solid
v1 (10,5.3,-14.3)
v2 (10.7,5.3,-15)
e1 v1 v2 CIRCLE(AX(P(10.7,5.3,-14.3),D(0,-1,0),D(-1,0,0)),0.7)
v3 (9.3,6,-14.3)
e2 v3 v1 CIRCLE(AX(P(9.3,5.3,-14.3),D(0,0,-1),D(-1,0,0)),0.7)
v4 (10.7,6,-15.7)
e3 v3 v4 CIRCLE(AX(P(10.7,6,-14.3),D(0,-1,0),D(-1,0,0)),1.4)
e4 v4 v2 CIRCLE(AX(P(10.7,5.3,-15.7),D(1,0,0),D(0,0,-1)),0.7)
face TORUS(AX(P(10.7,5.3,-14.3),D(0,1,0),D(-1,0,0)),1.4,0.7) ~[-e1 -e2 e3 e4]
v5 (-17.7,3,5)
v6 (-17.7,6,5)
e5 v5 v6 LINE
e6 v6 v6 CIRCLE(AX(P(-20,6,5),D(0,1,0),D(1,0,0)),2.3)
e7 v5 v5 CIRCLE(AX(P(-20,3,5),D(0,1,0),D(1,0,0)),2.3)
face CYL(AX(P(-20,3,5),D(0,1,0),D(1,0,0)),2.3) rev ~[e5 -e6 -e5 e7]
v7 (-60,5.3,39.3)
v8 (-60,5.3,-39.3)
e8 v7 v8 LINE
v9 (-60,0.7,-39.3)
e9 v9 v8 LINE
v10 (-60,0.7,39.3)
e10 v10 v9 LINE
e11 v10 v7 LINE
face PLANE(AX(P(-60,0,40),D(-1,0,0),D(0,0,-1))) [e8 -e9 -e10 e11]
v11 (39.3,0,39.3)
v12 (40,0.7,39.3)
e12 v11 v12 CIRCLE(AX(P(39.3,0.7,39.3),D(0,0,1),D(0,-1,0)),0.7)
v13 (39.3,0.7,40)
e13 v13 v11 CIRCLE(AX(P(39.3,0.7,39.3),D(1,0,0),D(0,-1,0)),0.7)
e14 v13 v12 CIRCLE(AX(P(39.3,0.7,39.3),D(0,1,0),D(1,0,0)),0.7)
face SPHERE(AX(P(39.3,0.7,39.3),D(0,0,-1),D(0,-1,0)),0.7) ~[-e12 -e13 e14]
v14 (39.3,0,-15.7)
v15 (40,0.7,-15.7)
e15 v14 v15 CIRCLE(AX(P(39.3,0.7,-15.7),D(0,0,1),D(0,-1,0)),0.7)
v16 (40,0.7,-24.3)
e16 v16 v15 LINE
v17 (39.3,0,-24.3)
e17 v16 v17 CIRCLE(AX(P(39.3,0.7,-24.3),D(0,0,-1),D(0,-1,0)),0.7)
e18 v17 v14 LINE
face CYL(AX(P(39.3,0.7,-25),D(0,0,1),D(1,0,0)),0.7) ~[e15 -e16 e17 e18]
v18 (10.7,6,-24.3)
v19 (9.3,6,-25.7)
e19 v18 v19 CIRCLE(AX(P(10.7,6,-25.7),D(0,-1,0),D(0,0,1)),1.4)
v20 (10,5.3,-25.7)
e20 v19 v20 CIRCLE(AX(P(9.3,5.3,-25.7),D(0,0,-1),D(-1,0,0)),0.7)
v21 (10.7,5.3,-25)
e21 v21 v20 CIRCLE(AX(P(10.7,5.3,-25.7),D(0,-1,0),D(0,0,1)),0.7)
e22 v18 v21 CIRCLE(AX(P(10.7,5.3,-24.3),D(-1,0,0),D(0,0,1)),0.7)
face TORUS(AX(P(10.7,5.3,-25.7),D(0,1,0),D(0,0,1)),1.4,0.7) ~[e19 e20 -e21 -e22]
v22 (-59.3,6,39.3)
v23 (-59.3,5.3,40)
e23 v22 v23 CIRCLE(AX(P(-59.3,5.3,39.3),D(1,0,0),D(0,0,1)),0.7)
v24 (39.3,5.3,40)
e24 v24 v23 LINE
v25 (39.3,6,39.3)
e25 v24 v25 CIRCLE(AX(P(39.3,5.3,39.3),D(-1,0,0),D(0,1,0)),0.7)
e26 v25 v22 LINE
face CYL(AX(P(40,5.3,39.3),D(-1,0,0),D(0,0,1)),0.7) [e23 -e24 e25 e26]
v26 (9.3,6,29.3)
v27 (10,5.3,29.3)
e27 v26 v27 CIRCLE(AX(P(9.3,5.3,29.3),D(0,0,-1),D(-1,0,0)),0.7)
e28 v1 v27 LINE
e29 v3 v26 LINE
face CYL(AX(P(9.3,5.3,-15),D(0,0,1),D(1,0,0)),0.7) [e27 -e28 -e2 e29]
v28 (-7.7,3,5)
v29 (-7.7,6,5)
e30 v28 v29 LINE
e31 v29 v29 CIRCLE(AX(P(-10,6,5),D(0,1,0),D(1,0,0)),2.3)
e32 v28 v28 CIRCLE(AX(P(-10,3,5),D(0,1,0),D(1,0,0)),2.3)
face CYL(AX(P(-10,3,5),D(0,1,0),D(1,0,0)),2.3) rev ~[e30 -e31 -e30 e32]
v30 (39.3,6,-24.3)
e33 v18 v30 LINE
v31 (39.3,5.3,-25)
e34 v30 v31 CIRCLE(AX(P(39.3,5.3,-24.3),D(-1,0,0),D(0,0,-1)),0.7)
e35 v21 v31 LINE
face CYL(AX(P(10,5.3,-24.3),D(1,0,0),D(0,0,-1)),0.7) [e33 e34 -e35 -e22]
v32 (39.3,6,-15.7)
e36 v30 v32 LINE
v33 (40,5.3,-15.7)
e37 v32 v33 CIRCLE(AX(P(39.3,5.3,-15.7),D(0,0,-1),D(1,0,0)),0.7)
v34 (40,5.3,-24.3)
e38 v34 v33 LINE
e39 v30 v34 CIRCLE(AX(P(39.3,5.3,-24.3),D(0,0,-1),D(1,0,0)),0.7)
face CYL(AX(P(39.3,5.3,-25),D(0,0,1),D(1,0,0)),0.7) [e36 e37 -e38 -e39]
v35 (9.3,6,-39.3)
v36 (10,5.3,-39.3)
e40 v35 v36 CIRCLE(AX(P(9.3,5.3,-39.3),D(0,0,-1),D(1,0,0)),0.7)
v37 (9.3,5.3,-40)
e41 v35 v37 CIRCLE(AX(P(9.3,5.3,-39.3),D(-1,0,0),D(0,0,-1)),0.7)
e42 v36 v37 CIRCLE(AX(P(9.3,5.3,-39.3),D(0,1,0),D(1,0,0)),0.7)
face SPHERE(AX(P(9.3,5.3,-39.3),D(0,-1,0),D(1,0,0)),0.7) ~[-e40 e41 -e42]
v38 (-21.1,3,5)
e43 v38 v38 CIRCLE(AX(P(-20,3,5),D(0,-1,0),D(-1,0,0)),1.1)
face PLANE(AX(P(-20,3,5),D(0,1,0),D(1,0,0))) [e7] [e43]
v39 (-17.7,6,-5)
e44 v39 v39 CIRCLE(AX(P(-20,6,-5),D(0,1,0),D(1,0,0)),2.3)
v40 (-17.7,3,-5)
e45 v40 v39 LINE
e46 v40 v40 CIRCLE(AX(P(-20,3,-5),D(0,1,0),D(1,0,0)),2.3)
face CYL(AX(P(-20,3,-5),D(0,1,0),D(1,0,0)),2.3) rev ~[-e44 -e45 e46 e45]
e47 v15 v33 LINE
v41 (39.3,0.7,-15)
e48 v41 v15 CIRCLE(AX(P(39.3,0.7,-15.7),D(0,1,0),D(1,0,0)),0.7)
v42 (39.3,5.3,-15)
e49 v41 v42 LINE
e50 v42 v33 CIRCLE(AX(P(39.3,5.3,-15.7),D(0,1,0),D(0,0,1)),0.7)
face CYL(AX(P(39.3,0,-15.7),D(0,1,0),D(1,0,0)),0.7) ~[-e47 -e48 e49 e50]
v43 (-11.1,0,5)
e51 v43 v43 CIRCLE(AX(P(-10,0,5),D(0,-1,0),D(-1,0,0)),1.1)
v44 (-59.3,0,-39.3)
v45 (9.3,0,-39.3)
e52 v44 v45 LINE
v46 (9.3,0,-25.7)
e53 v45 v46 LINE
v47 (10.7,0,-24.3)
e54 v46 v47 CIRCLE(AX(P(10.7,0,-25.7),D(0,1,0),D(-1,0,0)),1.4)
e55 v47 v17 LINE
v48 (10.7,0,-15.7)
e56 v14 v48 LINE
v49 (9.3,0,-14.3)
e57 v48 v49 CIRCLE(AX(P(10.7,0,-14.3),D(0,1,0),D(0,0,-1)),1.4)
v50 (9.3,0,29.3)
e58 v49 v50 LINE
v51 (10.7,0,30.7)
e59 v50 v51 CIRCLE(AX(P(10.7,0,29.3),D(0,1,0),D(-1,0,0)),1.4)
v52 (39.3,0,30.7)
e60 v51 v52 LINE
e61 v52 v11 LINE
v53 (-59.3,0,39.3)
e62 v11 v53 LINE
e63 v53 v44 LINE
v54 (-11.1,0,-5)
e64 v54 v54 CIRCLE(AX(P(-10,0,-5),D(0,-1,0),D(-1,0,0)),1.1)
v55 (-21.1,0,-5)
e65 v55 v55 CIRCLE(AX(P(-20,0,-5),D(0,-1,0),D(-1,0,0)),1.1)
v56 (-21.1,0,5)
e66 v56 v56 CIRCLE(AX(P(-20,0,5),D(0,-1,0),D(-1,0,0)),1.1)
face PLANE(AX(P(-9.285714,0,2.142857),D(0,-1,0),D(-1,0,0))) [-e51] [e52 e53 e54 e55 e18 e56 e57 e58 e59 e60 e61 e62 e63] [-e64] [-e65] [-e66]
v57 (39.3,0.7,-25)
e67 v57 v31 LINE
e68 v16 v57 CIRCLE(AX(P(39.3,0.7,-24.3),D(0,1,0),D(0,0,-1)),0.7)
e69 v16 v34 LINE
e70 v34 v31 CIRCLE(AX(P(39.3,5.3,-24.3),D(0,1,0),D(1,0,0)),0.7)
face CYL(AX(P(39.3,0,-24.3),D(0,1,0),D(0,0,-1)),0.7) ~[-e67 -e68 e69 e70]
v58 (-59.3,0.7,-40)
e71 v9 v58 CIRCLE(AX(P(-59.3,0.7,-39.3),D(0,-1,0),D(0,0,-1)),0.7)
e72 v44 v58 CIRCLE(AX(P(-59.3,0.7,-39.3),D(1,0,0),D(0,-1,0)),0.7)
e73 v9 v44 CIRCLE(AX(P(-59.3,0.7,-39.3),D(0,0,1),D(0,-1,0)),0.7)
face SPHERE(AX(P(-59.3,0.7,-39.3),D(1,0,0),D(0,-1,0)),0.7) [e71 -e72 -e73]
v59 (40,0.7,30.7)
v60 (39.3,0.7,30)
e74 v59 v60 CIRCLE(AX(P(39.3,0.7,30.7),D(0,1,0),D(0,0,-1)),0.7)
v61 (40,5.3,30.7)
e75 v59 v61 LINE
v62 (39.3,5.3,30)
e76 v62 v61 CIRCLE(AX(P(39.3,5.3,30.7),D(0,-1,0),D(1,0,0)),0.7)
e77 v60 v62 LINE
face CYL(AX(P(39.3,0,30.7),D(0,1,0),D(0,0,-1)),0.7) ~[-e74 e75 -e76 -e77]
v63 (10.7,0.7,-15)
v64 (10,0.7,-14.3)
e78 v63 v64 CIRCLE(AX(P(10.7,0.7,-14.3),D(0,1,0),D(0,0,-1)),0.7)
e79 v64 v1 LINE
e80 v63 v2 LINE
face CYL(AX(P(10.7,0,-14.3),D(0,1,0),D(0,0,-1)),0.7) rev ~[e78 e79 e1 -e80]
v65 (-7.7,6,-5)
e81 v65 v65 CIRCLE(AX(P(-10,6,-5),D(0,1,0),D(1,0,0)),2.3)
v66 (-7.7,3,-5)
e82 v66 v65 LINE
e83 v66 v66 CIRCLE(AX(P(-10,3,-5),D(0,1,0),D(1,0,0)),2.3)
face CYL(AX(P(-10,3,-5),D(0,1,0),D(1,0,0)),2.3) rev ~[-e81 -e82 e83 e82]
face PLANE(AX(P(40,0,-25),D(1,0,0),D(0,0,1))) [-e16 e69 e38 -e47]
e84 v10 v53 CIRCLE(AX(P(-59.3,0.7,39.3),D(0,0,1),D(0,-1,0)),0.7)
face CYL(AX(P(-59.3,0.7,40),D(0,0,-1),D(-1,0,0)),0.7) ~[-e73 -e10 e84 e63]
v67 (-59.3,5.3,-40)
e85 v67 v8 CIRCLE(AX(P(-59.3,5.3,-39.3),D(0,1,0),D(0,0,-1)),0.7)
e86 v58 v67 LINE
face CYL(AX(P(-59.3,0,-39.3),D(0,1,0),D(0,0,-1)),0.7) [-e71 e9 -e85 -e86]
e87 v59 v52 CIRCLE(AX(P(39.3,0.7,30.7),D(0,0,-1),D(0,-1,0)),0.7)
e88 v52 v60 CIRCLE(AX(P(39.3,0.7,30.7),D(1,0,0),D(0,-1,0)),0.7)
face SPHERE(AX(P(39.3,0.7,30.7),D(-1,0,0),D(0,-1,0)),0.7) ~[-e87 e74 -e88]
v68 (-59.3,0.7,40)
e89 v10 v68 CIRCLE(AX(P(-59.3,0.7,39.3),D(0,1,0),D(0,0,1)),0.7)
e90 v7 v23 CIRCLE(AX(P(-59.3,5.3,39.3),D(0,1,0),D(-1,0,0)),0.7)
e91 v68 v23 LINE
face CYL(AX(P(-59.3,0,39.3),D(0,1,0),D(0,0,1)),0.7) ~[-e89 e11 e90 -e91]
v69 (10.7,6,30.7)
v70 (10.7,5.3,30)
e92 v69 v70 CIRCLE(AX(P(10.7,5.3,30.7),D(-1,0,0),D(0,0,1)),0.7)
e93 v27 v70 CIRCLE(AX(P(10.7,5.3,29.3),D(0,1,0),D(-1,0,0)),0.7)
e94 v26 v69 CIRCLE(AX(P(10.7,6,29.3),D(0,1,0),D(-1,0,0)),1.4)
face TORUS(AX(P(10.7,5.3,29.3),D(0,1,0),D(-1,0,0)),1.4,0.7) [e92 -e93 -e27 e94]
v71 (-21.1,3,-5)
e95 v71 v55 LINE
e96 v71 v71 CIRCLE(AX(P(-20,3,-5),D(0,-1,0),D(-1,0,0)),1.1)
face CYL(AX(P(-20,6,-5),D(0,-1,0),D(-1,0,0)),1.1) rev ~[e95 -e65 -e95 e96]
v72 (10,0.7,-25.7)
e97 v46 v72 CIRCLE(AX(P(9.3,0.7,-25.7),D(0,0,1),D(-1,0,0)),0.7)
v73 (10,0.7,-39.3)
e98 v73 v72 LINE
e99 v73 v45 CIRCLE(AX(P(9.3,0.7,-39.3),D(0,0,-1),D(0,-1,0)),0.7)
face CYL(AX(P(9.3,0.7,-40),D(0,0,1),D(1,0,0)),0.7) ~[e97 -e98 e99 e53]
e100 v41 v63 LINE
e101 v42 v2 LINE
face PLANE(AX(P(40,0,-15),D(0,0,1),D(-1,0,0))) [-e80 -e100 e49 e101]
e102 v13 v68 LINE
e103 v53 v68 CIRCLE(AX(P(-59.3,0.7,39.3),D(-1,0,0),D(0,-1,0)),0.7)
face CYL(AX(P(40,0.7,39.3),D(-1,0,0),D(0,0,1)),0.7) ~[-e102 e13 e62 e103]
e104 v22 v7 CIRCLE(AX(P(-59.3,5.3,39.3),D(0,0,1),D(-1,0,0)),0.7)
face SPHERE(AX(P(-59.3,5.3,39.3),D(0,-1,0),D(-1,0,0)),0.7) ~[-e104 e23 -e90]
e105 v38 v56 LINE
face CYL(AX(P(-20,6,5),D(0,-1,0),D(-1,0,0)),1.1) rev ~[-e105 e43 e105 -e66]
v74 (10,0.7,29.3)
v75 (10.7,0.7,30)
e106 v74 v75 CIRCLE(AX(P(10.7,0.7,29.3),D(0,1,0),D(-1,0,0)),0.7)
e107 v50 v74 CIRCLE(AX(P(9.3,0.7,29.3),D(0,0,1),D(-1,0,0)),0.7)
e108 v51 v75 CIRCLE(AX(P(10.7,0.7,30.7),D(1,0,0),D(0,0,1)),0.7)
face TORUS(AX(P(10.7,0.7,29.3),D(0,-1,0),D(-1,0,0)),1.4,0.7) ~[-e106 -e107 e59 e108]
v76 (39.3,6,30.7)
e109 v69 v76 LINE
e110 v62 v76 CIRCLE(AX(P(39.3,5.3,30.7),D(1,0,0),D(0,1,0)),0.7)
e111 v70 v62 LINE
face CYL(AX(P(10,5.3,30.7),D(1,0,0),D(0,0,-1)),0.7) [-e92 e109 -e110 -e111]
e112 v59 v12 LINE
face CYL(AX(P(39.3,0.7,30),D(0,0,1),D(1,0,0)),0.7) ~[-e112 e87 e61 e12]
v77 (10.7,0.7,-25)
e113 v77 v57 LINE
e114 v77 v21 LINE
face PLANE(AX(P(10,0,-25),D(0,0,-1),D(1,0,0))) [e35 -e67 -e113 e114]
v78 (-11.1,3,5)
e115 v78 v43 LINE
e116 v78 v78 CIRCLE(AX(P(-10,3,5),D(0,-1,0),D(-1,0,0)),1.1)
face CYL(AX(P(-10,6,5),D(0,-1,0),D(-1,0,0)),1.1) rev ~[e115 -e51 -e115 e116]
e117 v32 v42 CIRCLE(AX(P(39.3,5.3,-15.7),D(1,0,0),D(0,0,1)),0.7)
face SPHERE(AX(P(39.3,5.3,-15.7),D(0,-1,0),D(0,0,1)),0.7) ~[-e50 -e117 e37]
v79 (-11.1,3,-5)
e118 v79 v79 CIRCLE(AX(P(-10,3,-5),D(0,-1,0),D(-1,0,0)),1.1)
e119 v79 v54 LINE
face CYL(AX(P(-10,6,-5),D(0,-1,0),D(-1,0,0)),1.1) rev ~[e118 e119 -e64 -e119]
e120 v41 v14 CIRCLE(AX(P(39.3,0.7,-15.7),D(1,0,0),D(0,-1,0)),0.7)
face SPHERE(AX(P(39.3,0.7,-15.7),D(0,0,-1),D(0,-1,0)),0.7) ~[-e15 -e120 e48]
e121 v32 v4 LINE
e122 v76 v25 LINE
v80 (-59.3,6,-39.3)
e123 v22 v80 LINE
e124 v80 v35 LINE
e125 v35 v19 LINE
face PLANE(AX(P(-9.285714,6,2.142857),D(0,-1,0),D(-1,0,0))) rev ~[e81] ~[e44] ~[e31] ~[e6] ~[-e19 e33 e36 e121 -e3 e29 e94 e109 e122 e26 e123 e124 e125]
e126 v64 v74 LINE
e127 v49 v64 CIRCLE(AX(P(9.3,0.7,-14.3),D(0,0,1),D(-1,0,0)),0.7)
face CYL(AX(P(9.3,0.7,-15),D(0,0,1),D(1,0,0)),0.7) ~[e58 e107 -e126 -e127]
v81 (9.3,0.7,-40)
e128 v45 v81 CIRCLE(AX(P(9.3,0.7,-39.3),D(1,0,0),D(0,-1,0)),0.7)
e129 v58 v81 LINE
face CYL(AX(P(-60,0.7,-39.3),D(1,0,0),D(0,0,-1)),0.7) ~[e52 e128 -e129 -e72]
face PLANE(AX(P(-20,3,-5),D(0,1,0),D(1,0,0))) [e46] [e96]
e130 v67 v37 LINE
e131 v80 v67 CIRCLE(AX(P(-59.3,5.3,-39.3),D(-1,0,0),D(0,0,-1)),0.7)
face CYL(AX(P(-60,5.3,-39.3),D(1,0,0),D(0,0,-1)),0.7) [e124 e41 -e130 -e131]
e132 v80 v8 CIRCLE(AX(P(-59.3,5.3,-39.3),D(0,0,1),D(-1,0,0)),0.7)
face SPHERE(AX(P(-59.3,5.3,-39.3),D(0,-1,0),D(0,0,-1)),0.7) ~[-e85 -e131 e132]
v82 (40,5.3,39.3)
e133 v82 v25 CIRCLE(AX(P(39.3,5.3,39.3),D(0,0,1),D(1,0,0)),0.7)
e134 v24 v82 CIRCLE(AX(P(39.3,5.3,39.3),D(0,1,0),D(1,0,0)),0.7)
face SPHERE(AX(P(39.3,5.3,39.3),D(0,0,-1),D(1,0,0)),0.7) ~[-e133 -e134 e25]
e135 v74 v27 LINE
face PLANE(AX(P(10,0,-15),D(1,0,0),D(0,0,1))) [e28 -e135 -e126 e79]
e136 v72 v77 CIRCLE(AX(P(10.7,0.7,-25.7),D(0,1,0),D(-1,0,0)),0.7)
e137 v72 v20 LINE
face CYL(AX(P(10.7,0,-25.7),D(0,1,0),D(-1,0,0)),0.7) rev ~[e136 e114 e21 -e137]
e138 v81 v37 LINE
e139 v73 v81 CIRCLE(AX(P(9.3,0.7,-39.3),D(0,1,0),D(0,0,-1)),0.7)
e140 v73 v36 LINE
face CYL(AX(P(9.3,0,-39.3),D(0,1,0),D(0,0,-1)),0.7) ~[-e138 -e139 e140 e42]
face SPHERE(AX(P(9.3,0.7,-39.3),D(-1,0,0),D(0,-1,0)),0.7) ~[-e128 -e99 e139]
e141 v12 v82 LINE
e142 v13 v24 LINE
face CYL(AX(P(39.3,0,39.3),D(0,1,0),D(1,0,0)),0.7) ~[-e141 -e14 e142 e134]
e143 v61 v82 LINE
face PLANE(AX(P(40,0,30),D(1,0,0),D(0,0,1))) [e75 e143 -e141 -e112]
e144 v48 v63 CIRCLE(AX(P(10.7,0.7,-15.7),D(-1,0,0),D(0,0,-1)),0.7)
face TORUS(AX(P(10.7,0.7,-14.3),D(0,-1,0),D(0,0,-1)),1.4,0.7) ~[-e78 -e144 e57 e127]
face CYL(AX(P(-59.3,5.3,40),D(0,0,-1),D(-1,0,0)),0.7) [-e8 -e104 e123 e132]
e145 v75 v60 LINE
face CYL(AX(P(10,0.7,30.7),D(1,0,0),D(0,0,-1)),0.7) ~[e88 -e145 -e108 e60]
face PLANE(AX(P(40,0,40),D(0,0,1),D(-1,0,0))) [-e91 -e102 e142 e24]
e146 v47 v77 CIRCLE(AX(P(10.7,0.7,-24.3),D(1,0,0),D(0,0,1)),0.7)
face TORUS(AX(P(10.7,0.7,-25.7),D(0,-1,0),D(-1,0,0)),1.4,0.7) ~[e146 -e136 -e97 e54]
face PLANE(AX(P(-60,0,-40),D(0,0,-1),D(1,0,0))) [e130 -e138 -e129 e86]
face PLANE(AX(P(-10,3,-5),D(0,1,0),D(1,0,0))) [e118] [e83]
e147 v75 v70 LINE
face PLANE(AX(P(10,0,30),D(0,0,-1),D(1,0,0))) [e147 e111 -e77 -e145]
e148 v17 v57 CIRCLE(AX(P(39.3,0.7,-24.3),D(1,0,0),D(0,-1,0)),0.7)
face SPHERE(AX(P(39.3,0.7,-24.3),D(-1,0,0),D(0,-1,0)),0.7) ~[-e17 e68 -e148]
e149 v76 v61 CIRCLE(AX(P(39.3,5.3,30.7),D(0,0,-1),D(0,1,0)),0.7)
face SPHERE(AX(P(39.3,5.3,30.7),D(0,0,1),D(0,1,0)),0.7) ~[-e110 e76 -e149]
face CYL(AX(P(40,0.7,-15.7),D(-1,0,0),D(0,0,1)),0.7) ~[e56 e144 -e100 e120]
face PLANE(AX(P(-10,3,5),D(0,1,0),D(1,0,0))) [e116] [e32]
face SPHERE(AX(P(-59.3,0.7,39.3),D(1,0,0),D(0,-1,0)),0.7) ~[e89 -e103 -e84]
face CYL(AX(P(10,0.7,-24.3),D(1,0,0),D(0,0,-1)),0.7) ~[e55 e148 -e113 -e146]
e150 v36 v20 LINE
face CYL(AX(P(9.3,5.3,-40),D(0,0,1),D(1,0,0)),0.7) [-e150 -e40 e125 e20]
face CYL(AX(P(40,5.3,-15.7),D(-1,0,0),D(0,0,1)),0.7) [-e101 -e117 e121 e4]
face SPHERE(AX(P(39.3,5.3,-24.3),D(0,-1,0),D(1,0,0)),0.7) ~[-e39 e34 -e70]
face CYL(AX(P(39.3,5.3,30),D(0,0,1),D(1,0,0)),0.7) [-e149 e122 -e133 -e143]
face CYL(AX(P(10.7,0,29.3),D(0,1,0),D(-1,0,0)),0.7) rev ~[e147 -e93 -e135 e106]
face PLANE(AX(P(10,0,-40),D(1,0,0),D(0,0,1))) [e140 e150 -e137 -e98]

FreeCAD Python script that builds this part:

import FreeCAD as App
import Part
import Sketcher

doc = App.newDocument("Part")
body = doc.addObject("PartDesign::Body", "Body")

sketch1 = body.newObject("Sketcher::SketchObject", "Sketch")
sketch1.AttachmentSupport = (doc.getObject("XZ_Plane"), [""])
sketch1.MapMode = "FlatFace"
sketch1.addGeometry([
    Part.LineSegment(App.Vector(10, -40, 0), App.Vector(-60, -40, 0)),
    Part.LineSegment(App.Vector(-60, -40, 0), App.Vector(-60, 40, 0)),
    Part.LineSegment(App.Vector(-60, 40, 0), App.Vector(40, 40, 0)),
    Part.LineSegment(App.Vector(40, 40, 0), App.Vector(40, 30, 0)),
    Part.LineSegment(App.Vector(40, 30, 0), App.Vector(10, 30, 0)),
    Part.LineSegment(App.Vector(10, 30, 0), App.Vector(10, -15, 0)),
    Part.LineSegment(App.Vector(10, -15, 0), App.Vector(40, -15, 0)),
    Part.LineSegment(App.Vector(40, -15, 0), App.Vector(40, -25, 0)),
    Part.LineSegment(App.Vector(40, -25, 0), App.Vector(10, -25, 0)),
    Part.LineSegment(App.Vector(10, -25, 0), App.Vector(10, -40, 0)),
], False)
sketch1.addConstraint([
    Sketcher.Constraint("Coincident", 0, 2, 1, 1),
    Sketcher.Constraint("Coincident", 1, 2, 2, 1),
    Sketcher.Constraint("Coincident", 2, 2, 3, 1),
    Sketcher.Constraint("Coincident", 3, 2, 4, 1),
    Sketcher.Constraint("Coincident", 4, 2, 5, 1),
    Sketcher.Constraint("Coincident", 5, 2, 6, 1),
    Sketcher.Constraint("Coincident", 6, 2, 7, 1),
    Sketcher.Constraint("Coincident", 7, 2, 8, 1),
    Sketcher.Constraint("Coincident", 8, 2, 9, 1),
    Sketcher.Constraint("Coincident", 9, 2, 0, 1),
    Sketcher.Constraint("Horizontal", 0),
    Sketcher.Constraint("Vertical", 1),
    Sketcher.Constraint("Horizontal", 2),
    Sketcher.Constraint("Vertical", 3),
    Sketcher.Constraint("Horizontal", 4),
    Sketcher.Constraint("Vertical", 5),
    Sketcher.Constraint("Horizontal", 6),
    Sketcher.Constraint("Vertical", 7),
    Sketcher.Constraint("Horizontal", 8),
    Sketcher.Constraint("Vertical", 9),
    Sketcher.Constraint("Vertical", 3, 2, 6, 2),
    Sketcher.Constraint("Vertical", 5, 2, 8, 2),
    Sketcher.Constraint("Equal", 3, 7),
    Sketcher.Constraint("DistanceX", 0, 2, 0, 1, 70.0),
    Sketcher.Constraint("DistanceX", 2, 1, 2, 2, 100.0),
    Sketcher.Constraint("DistanceY", 1, 1, 1, 2, 80.0),
    Sketcher.Constraint("DistanceY", 3, 2, 3, 1, 10.0),
    Sketcher.Constraint("DistanceY", 5, 2, 5, 1, 45.0),
    Sketcher.Constraint("DistanceX", 0, 2, -1, 1, 60.0),
    Sketcher.Constraint("DistanceY", 0, 2, -1, 1, 40.0),
])
pad1 = body.newObject("PartDesign::Pad", "Pad")
pad1.Profile = sketch1
pad1.Length = 6
pad1.Reversed = True
doc.recompute()

fillet = body.newObject("PartDesign::Fillet", "Fillet")
fillet.Base = (pad1, ["Edge1"])
fillet.UseAllEdges = True
fillet.Radius = 0.7

sketch2 = body.newObject("Sketcher::SketchObject", "Sketch001")
sketch2.AttachmentSupport = (doc.getObject("XZ_Plane"), [""])
sketch2.MapMode = "FlatFace"
sketch2.AttachmentOffset = App.Placement(App.Vector(0, 0, -6), App.Rotation())
sketch2.addGeometry([
    Part.Circle(App.Vector(-20, -5, 0), App.Vector(0, 0, 1), 1.1),
    Part.Circle(App.Vector(-10, -5, 0), App.Vector(0, 0, 1), 1.1),
    Part.Circle(App.Vector(-10, 5, 0), App.Vector(0, 0, 1), 1.1),
    Part.Circle(App.Vector(-20, 5, 0), App.Vector(0, 0, 1), 1.1),
], False)
sketch2.addConstraint([
    Sketcher.Constraint("Equal", 0, 1),
    Sketcher.Constraint("Equal", 1, 2),
    Sketcher.Constraint("Equal", 2, 3),
    Sketcher.Constraint("Symmetric", 1, 3, 2, 3, -1),
    Sketcher.Constraint("Symmetric", 0, 3, 3, 3, -1),
    Sketcher.Constraint("Horizontal", 0, 3, 1, 3),
    Sketcher.Constraint("Diameter", 0, 2.2),
    Sketcher.Constraint("DistanceX", 0, 3, -1, 1, 20.0),
    Sketcher.Constraint("DistanceY", 0, 3, -1, 1, 5.0),
    Sketcher.Constraint("DistanceX", 1, 3, -1, 1, 10.0),
])
doc.recompute()
hole = body.newObject("PartDesign::Hole", "Hole")
hole.Profile = sketch2
hole.ThreadType = "None"
hole.Diameter = 2.2
hole.DepthType = "ThroughAll"
hole.HoleCutType = "Counterbore"
hole.HoleCutDiameter = 4.6
hole.HoleCutDepth = 3
hole.Reversed = True

doc.recompute()
